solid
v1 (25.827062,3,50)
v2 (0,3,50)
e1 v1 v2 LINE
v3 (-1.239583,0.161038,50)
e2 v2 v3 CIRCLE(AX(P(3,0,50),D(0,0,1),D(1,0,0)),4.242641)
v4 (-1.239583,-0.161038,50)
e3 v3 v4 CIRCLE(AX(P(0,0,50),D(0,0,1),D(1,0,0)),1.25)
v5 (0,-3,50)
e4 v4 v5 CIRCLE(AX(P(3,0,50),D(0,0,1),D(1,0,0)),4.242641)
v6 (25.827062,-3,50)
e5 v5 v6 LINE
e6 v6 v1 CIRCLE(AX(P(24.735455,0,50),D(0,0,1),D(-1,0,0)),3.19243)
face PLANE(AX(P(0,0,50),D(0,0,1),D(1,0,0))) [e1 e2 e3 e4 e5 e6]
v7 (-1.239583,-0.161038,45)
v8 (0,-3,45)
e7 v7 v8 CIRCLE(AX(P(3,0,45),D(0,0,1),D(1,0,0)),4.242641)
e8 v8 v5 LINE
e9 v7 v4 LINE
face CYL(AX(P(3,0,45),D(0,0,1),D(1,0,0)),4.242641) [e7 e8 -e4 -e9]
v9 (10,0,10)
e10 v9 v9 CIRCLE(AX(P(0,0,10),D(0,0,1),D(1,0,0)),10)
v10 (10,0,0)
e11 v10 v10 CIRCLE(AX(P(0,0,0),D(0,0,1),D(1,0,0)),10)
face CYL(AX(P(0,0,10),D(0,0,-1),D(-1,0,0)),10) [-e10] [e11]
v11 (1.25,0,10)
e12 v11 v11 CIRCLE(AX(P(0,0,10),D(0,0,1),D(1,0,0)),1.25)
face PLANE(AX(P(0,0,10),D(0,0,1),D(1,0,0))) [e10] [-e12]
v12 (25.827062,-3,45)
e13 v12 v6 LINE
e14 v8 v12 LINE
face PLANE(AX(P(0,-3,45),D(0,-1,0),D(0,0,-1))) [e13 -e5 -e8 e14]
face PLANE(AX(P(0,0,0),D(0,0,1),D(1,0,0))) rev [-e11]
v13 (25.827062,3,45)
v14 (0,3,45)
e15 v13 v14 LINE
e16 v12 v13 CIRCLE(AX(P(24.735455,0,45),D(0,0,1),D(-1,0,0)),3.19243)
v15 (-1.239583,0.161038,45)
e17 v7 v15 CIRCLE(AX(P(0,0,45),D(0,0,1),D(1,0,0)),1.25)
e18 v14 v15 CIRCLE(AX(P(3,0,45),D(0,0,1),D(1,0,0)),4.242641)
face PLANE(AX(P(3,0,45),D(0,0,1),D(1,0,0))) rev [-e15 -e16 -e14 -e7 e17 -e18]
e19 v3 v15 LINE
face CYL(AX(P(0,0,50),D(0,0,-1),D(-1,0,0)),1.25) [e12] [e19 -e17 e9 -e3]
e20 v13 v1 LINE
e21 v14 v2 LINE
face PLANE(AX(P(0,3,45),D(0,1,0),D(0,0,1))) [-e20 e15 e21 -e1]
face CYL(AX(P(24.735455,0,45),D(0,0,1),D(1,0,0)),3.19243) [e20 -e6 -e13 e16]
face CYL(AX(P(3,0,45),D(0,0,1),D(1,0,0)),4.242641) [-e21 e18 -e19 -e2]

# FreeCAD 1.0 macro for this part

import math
import FreeCAD as App
import Part
import Sketcher

V = App.Vector

doc = App.newDocument("Part")
body = doc.addObject("PartDesign::Body", "Body")

# Sketch on XY plane
sketch1 = body.newObject("Sketcher::SketchObject", "Sketch")
sketch1.AttachmentSupport = (doc.getObject("XY_Plane"), [""])
sketch1.MapMode = "FlatFace"
sketch1.addGeometry(Part.Circle(V(0, 0, 0), V(0, 0, 1), 10), False)
sketch1.addConstraint([
    Sketcher.Constraint("Coincident", 0, 3, -1, 1),
    Sketcher.Constraint("Diameter", 0, 20.0),
])
pad1 = body.newObject("PartDesign::Pad", "Pad")
pad1.Profile = sketch1
pad1.Length = 10

# Sketch on XY plane
sketch2 = body.newObject("Sketcher::SketchObject", "Sketch001")
sketch2.AttachmentSupport = (doc.getObject("XY_Plane"), [""])
sketch2.MapMode = "FlatFace"
sketch2.AttachmentOffset = App.Placement(V(0, 0, 10), App.Rotation())
sketch2.addGeometry(Part.Circle(V(0, 0, 0), V(0, 0, 1), 1.2), False)
sketch2.addConstraint([
    Sketcher.Constraint("Coincident", 0, 3, -1, 1),
    Sketcher.Constraint("Diameter", 0, 2.5),
])
pad2 = body.newObject("PartDesign::Pad", "Pad001")
pad2.Profile = sketch2
pad2.Length = 40

# Sketch on XY plane
sketch3 = body.newObject("Sketcher::SketchObject", "Sketch002")
sketch3.AttachmentSupport = (doc.getObject("XY_Plane"), [""])
sketch3.MapMode = "FlatFace"
sketch3.AttachmentOffset = App.Placement(V(0, 0, 50), App.Rotation())
sketch3.addGeometry([
    Part.LineSegment(V(25.8, 3, 0), V(0, 3, 0)),
    Part.ArcOfCircle(Part.Circle(V(3, 0, 0), V(0, 0, 1), 4.2), math.radians(135), math.radians(225)),
    Part.LineSegment(V(0, -3, 0), V(25.8, -3, 0)),
    Part.ArcOfCircle(Part.Circle(V(24.7, 0, 0), V(0, 0, 1), 3.2), math.radians(-70), math.radians(70)),
], False)
sketch3.addConstraint([
    Sketcher.Constraint("Coincident", 0, 2, 1, 1),
    Sketcher.Constraint("Coincident", 1, 2, 2, 1),
    Sketcher.Constraint("Coincident", 2, 2, 3, 1),
    Sketcher.Constraint("Coincident", 3, 2, 0, 1),
    Sketcher.Constraint("Horizontal", 0),
    Sketcher.Constraint("Horizontal", 2),
    Sketcher.Constraint("Symmetric", 0, 2, 1, 2, -1, 1),
    Sketcher.Constraint("PointOnObject", 1, 3, -1),
    Sketcher.Constraint("PointOnObject", 3, 3, -1),
    Sketcher.Constraint("DistanceX", -1, 1, 1, 3, 3.0),
    Sketcher.Constraint("DistanceY", -1, 1, 0, 2, 3.0),
    Sketcher.Constraint("Radius", 3, 3.19243),
    Sketcher.Constraint("DistanceX", 0, 2, 0, 1, 25.827062),
])
pad3 = body.newObject("PartDesign::Pad", "Pad002")
pad3.Profile = sketch3
pad3.Length = 5
pad3.Reversed = True

doc.recompute()
